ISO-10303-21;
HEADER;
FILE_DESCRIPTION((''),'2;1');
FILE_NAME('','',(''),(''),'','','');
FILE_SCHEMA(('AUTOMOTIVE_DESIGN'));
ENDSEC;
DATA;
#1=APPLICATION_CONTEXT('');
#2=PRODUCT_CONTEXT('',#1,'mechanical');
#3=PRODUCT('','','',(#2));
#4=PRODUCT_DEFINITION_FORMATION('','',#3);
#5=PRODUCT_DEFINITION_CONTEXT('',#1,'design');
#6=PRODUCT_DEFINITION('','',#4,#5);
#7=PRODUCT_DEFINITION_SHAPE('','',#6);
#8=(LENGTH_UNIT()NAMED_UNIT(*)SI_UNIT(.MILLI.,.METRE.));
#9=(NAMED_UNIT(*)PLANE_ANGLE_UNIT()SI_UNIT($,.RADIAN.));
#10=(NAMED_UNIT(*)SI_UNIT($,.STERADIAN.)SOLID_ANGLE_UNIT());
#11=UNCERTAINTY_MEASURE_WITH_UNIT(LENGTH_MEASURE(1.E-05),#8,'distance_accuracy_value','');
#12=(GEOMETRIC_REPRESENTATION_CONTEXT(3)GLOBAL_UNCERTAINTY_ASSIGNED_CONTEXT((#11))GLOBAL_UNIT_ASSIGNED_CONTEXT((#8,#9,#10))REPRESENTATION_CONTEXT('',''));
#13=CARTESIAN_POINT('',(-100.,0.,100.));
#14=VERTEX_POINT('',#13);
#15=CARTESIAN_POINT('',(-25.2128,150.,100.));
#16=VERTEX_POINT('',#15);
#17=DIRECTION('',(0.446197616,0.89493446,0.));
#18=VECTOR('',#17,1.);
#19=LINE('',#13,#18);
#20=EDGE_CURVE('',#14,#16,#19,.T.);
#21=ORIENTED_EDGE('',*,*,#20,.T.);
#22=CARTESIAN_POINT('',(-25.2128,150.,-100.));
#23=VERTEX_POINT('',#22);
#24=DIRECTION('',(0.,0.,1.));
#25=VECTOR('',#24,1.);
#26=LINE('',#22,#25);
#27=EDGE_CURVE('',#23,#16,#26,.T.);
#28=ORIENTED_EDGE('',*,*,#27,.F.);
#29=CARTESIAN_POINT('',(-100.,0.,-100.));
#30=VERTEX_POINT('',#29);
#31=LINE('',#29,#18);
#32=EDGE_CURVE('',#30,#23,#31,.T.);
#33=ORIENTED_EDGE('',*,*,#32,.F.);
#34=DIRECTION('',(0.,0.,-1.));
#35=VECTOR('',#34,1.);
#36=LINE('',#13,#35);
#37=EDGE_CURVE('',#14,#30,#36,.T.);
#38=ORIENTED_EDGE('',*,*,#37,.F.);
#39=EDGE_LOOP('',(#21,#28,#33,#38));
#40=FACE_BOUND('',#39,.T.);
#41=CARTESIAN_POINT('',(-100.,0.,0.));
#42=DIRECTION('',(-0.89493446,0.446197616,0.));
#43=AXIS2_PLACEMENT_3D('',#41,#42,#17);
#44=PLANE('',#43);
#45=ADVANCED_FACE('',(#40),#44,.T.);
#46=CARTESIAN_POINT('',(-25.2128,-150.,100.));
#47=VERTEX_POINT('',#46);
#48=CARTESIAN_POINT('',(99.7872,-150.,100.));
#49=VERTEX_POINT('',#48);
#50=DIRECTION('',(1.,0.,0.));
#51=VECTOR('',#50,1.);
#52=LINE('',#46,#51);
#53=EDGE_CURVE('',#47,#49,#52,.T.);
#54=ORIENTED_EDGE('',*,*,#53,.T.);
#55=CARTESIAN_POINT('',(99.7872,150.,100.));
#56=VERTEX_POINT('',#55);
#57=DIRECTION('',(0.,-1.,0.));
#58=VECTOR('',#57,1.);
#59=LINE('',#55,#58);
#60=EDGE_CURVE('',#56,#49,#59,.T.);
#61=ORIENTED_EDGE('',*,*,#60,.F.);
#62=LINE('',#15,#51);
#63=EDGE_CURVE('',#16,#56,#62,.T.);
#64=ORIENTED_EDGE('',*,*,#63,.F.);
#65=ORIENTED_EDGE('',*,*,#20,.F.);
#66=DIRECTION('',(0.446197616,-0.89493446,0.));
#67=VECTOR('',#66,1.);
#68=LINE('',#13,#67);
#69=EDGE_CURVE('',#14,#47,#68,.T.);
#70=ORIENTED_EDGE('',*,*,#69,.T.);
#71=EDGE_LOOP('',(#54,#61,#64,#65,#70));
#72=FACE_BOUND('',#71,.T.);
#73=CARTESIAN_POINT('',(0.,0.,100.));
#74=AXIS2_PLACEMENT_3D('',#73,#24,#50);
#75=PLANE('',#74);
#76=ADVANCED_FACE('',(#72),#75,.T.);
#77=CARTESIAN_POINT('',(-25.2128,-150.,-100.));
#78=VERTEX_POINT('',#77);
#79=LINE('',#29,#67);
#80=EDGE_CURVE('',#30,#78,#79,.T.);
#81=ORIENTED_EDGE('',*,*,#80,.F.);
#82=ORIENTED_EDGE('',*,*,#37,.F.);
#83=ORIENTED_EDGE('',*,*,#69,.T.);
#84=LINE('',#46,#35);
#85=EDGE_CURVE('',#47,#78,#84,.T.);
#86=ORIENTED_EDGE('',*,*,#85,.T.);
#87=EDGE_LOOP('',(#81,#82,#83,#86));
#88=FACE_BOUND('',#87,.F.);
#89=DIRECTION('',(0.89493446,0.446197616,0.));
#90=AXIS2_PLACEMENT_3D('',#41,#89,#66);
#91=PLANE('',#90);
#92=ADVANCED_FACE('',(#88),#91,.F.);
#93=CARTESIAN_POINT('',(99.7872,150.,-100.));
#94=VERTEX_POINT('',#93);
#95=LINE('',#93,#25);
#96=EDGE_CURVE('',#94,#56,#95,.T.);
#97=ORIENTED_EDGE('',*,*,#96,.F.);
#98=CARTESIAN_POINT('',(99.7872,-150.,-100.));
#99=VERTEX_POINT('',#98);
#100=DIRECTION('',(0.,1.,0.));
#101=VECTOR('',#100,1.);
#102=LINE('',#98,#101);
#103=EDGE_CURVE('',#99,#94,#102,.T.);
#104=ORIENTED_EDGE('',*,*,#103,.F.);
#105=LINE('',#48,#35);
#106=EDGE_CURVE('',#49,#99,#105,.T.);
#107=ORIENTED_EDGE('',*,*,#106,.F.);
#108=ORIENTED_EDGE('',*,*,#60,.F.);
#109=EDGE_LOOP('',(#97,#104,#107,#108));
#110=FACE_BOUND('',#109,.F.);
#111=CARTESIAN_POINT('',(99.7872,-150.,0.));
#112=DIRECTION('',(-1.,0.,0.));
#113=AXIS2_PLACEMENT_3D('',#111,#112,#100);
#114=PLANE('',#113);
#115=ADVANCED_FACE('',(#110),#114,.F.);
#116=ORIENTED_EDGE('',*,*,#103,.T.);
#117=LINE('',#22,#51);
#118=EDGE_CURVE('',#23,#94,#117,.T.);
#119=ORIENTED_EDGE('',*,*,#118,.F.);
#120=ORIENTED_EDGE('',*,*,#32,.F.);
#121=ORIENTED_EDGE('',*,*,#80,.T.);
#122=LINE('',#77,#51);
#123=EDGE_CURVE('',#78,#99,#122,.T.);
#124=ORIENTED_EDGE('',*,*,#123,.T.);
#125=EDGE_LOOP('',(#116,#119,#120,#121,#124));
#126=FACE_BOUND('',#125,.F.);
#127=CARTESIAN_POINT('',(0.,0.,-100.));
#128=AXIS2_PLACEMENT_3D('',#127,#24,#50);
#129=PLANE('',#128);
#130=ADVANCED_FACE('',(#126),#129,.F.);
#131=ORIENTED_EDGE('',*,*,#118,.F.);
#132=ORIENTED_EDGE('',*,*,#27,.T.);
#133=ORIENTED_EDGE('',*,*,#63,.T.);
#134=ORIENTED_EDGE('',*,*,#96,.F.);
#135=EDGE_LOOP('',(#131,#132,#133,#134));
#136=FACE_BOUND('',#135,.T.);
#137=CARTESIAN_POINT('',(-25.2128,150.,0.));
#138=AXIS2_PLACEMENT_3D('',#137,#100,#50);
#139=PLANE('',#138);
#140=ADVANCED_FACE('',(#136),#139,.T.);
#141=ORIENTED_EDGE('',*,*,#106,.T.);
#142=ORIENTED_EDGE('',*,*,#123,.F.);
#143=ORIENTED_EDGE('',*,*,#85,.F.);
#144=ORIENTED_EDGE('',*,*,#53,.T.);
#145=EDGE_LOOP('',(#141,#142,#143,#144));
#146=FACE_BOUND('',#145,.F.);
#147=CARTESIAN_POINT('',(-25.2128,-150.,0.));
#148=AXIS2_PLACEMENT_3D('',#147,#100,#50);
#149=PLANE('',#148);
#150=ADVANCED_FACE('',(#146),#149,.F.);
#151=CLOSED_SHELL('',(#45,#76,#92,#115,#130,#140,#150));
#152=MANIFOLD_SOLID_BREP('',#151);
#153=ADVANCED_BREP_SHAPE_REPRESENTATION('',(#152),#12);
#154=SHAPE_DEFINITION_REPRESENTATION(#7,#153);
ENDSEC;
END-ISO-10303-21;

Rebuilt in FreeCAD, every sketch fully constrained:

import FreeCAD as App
import Part
import Sketcher
Q = App.Units.Quantity

doc = App.newDocument("Part")
params = doc.addObject("Spreadsheet::Sheet", "Params")
for row, (alias, value) in enumerate([
    ("sketch1_width", "125 mm"),
    ("sketch1_height", "300 mm"),
    ("pad1_length", "200 mm"),
], start=1):
    params.set(f"A{row}", alias)
    params.set(f"B{row}", "=" + value)
    params.setAlias(f"B{row}", alias)

body = doc.addObject("PartDesign::Body", "Body")

sketch1 = body.newObject("Sketcher::SketchObject", "Sketch")
sketch1.AttachmentSupport = (doc.getObject("XY_Plane"), [""])
sketch1.MapMode = "FlatFace"
sketch1.addGeometry(Part.LineSegment(App.Vector(100, -150, 0), App.Vector(100, 150, 0)), False)
sketch1.addGeometry(Part.LineSegment(App.Vector(100, 150, 0), App.Vector(-25, 150, 0)), False)
sketch1.addGeometry(Part.LineSegment(App.Vector(-25, 150, 0), App.Vector(-100, 0, 0)), False)
sketch1.addGeometry(Part.LineSegment(App.Vector(-100, 0, 0), App.Vector(-25, -150, 0)), False)
sketch1.addGeometry(Part.LineSegment(App.Vector(-25, -150, 0), App.Vector(100, -150, 0)), False)
sketch1.addConstraint(Sketcher.Constraint("Coincident", 0, 2, 1, 1))
sketch1.addConstraint(Sketcher.Constraint("Coincident", 1, 2, 2, 1))
sketch1.addConstraint(Sketcher.Constraint("Coincident", 2, 2, 3, 1))
sketch1.addConstraint(Sketcher.Constraint("Coincident", 3, 2, 4, 1))
sketch1.addConstraint(Sketcher.Constraint("Coincident", 4, 2, 0, 1))
sketch1.addConstraint(Sketcher.Constraint("Vertical", 0))
sketch1.addConstraint(Sketcher.Constraint("Horizontal", 1))
sketch1.addConstraint(Sketcher.Constraint("Horizontal", 4))
sketch1.addConstraint(Sketcher.Constraint("Symmetric", 1, 2, 3, 2, -1))
sketch1.addConstraint(Sketcher.Constraint("PointOnObject", 2, 2, -1))
sketch1.addConstraint(Sketcher.Constraint("DistanceX", 1, 2, 1, 1, Q("125 mm")))
sketch1.addConstraint(Sketcher.Constraint("DistanceY", 0, 1, 0, 2, Q("300 mm")))
sketch1.addConstraint(Sketcher.Constraint("DistanceX", 2, 2, -1, 1, Q("100 mm")))
sketch1.addConstraint(Sketcher.Constraint("Angle", 2, Q("-116.5 deg")))
sketch1.setExpression("Constraints[10]", "Params.sketch1_width")
sketch1.setExpression("Constraints[11]", "Params.sketch1_height")
pad1 = body.newObject("PartDesign::Pad", "Pad")
pad1.Profile = sketch1
pad1.setExpression("Length", "Params.pad1_length")
pad1.Midplane = True

doc.recompute()
